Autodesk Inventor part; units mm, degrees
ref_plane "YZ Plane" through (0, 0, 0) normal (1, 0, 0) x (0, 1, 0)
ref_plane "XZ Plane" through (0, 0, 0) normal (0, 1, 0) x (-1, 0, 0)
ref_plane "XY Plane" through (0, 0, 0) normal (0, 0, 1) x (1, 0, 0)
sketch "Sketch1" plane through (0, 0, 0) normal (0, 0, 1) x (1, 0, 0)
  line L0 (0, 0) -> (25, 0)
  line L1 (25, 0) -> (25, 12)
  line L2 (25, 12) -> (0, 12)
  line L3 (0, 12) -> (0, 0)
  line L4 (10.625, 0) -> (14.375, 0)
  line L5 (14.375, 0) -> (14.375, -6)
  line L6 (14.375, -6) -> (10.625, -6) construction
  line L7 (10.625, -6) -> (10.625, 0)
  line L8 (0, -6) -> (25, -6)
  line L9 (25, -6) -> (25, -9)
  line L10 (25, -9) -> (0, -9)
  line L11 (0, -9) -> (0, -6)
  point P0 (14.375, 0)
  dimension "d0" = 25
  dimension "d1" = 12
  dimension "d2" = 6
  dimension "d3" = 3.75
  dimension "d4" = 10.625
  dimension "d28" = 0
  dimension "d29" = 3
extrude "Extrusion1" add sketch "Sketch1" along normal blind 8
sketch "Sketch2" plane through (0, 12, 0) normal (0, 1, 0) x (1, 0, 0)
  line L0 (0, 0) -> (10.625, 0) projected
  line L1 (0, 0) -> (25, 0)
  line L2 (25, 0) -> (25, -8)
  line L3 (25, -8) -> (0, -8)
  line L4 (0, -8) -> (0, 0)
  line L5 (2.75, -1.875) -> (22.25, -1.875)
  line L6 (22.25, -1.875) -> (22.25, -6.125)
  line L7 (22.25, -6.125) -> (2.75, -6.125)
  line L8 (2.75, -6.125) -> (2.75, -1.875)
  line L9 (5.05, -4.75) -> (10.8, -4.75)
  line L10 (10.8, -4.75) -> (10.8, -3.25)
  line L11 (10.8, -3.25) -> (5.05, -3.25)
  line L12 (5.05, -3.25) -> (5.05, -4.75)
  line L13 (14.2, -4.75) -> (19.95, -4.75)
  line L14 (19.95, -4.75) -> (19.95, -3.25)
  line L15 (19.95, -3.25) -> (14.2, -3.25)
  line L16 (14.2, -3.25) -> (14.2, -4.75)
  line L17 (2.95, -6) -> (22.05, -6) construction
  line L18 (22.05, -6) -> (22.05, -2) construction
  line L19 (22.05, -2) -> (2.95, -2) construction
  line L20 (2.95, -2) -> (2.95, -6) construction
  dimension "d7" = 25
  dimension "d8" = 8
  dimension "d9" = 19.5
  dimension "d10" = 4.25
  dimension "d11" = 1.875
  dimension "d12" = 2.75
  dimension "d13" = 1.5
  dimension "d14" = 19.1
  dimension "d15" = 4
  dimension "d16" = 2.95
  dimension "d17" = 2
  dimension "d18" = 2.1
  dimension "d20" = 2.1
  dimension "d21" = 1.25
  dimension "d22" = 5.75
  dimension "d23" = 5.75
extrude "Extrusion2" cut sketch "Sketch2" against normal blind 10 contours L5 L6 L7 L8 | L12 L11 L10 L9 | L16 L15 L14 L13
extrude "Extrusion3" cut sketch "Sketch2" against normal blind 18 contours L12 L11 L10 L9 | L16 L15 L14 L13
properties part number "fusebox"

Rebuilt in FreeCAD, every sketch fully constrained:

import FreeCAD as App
import Part
import Sketcher

V = App.Vector
Q = App.Units.Quantity

doc = App.newDocument("Part")
body = doc.addObject("PartDesign::Body", "Body")

# Sketch on XY plane
sketch1 = body.newObject("Sketcher::SketchObject", "Sketch")
sketch1.AttachmentSupport = (doc.getObject("XY_Plane"), [""])
sketch1.MapMode = "FlatFace"
sketch1.addGeometry(Part.LineSegment(V(0, 12, 0), V(0, 0, 0)), False)
sketch1.addGeometry(Part.LineSegment(V(0, 0, 0), V(10.6, 0, 0)), False)
sketch1.addGeometry(Part.LineSegment(V(10.6, 0, 0), V(10.6, -6, 0)), False)
sketch1.addGeometry(Part.LineSegment(V(10.6, -6, 0), V(0, -6, 0)), False)
sketch1.addGeometry(Part.LineSegment(V(0, -6, 0), V(0, -9, 0)), False)
sketch1.addGeometry(Part.LineSegment(V(0, -9, 0), V(25, -9, 0)), False)
sketch1.addGeometry(Part.LineSegment(V(25, -9, 0), V(25, -6, 0)), False)
sketch1.addGeometry(Part.LineSegment(V(25, -6, 0), V(14.4, -6, 0)), False)
sketch1.addGeometry(Part.LineSegment(V(14.4, -6, 0), V(14.4, 0, 0)), False)
sketch1.addGeometry(Part.LineSegment(V(14.4, 0, 0), V(25, 0, 0)), False)
sketch1.addGeometry(Part.LineSegment(V(25, 0, 0), V(25, 12, 0)), False)
sketch1.addGeometry(Part.LineSegment(V(25, 12, 0), V(0, 12, 0)), False)
sketch1.addConstraint(Sketcher.Constraint("Coincident", 0, 2, 1, 1))
sketch1.addConstraint(Sketcher.Constraint("Coincident", 1, 2, 2, 1))
sketch1.addConstraint(Sketcher.Constraint("Coincident", 2, 2, 3, 1))
sketch1.addConstraint(Sketcher.Constraint("Coincident", 3, 2, 4, 1))
sketch1.addConstraint(Sketcher.Constraint("Coincident", 4, 2, 5, 1))
sketch1.addConstraint(Sketcher.Constraint("Coincident", 5, 2, 6, 1))
sketch1.addConstraint(Sketcher.Constraint("Coincident", 6, 2, 7, 1))
sketch1.addConstraint(Sketcher.Constraint("Coincident", 7, 2, 8, 1))
sketch1.addConstraint(Sketcher.Constraint("Coincident", 8, 2, 9, 1))
sketch1.addConstraint(Sketcher.Constraint("Coincident", 9, 2, 10, 1))
sketch1.addConstraint(Sketcher.Constraint("Coincident", 10, 2, 11, 1))
sketch1.addConstraint(Sketcher.Constraint("Coincident", 11, 2, 0, 1))
sketch1.addConstraint(Sketcher.Constraint("Vertical", 0))
sketch1.addConstraint(Sketcher.Constraint("Horizontal", 1))
sketch1.addConstraint(Sketcher.Constraint("Vertical", 2))
sketch1.addConstraint(Sketcher.Constraint("Horizontal", 3))
sketch1.addConstraint(Sketcher.Constraint("Vertical", 4))
sketch1.addConstraint(Sketcher.Constraint("Horizontal", 5))
sketch1.addConstraint(Sketcher.Constraint("Vertical", 6))
sketch1.addConstraint(Sketcher.Constraint("Horizontal", 7))
sketch1.addConstraint(Sketcher.Constraint("Vertical", 8))
sketch1.addConstraint(Sketcher.Constraint("Horizontal", 9))
sketch1.addConstraint(Sketcher.Constraint("Vertical", 10))
sketch1.addConstraint(Sketcher.Constraint("Horizontal", 11))
sketch1.addConstraint(Sketcher.Constraint("Coincident", 0, 2, -1, 1))
sketch1.addConstraint(Sketcher.Constraint("PointOnObject", 3, 2, -2))
sketch1.addConstraint(Sketcher.Constraint("PointOnObject", 8, 2, -1))
sketch1.addConstraint(Sketcher.Constraint("Horizontal", 3, 2, 6, 2))
sketch1.addConstraint(Sketcher.Constraint("Vertical", 6, 2, 9, 2))
sketch1.addConstraint(Sketcher.Constraint("Equal", 3, 7))
sketch1.addConstraint(Sketcher.Constraint("DistanceX", 5, 1, 5, 2, Q("25 mm")))
sketch1.addConstraint(Sketcher.Constraint("DistanceY", 0, 2, 0, 1, Q("12 mm")))
sketch1.addConstraint(Sketcher.Constraint("DistanceY", 2, 2, 2, 1, Q("6 mm")))
sketch1.addConstraint(Sketcher.Constraint("DistanceY", 4, 2, 4, 1, Q("3 mm")))
sketch1.addConstraint(Sketcher.Constraint("DistanceX", 1, 1, 1, 2, Q("10.625 mm")))
pad1 = body.newObject("PartDesign::Pad", "Pad")
pad1.Profile = sketch1
pad1.Length = 8

# Sketch on XZ plane
sketch2 = body.newObject("Sketcher::SketchObject", "Sketch001")
sketch2.AttachmentSupport = (doc.getObject("XZ_Plane"), [""])
sketch2.MapMode = "FlatFace"
sketch2.AttachmentOffset = App.Placement(V(0, 0, -12), App.Rotation())
sketch2.addGeometry(Part.LineSegment(V(22.2, 1.9, 0), V(2.8, 1.9, 0)), False)
sketch2.addGeometry(Part.LineSegment(V(2.8, 1.9, 0), V(2.8, 6.1, 0)), False)
sketch2.addGeometry(Part.LineSegment(V(2.8, 6.1, 0), V(22.2, 6.1, 0)), False)
sketch2.addGeometry(Part.LineSegment(V(22.2, 6.1, 0), V(22.2, 1.9, 0)), False)
sketch2.addConstraint(Sketcher.Constraint("Coincident", 0, 2, 1, 1))
sketch2.addConstraint(Sketcher.Constraint("Coincident", 1, 2, 2, 1))
sketch2.addConstraint(Sketcher.Constraint("Coincident", 2, 2, 3, 1))
sketch2.addConstraint(Sketcher.Constraint("Coincident", 3, 2, 0, 1))
sketch2.addConstraint(Sketcher.Constraint("Horizontal", 0))
sketch2.addConstraint(Sketcher.Constraint("Vertical", 1))
sketch2.addConstraint(Sketcher.Constraint("Horizontal", 2))
sketch2.addConstraint(Sketcher.Constraint("Vertical", 3))
sketch2.addConstraint(Sketcher.Constraint("DistanceX", 0, 2, 0, 1, Q("19.5 mm")))
sketch2.addConstraint(Sketcher.Constraint("DistanceY", 1, 1, 1, 2, Q("4.25 mm")))
sketch2.addConstraint(Sketcher.Constraint("DistanceX", -1, 1, 0, 2, Q("2.75 mm")))
sketch2.addConstraint(Sketcher.Constraint("DistanceY", -1, 1, 0, 2, Q("1.875 mm")))
pocket1 = body.newObject("PartDesign::Pocket", "Pocket")
pocket1.Profile = sketch2
pocket1.Length = 10
pocket1.Reversed = True

# Sketch on XZ plane
sketch3 = body.newObject("Sketcher::SketchObject", "Sketch002")
sketch3.AttachmentSupport = (doc.getObject("XZ_Plane"), [""])
sketch3.MapMode = "FlatFace"
sketch3.AttachmentOffset = App.Placement(V(0, 0, -12), App.Rotation())
sketch3.addGeometry(Part.LineSegment(V(5, 3.2, 0), V(5, 4.8, 0)), False)
sketch3.addGeometry(Part.LineSegment(V(5, 4.8, 0), V(10.8, 4.8, 0)), False)
sketch3.addGeometry(Part.LineSegment(V(10.8, 4.8, 0), V(10.8, 3.2, 0)), False)
sketch3.addGeometry(Part.LineSegment(V(10.8, 3.2, 0), V(5, 3.2, 0)), False)
sketch3.addGeometry(Part.LineSegment(V(14.2, 3.2, 0), V(14.2, 4.8, 0)), False)
sketch3.addGeometry(Part.LineSegment(V(14.2, 4.8, 0), V(19.9, 4.8, 0)), False)
sketch3.addGeometry(Part.LineSegment(V(19.9, 4.8, 0), V(19.9, 3.2, 0)), False)
sketch3.addGeometry(Part.LineSegment(V(19.9, 3.2, 0), V(14.2, 3.2, 0)), False)
sketch3.addConstraint(Sketcher.Constraint("Coincident", 0, 2, 1, 1))
sketch3.addConstraint(Sketcher.Constraint("Coincident", 1, 2, 2, 1))
sketch3.addConstraint(Sketcher.Constraint("Coincident", 2, 2, 3, 1))
sketch3.addConstraint(Sketcher.Constraint("Coincident", 3, 2, 0, 1))
sketch3.addConstraint(Sketcher.Constraint("Coincident", 4, 2, 5, 1))
sketch3.addConstraint(Sketcher.Constraint("Coincident", 5, 2, 6, 1))
sketch3.addConstraint(Sketcher.Constraint("Coincident", 6, 2, 7, 1))
sketch3.addConstraint(Sketcher.Constraint("Coincident", 7, 2, 4, 1))
sketch3.addConstraint(Sketcher.Constraint("Vertical", 0))
sketch3.addConstraint(Sketcher.Constraint("Horizontal", 1))
sketch3.addConstraint(Sketcher.Constraint("Vertical", 2))
sketch3.addConstraint(Sketcher.Constraint("Horizontal", 3))
sketch3.addConstraint(Sketcher.Constraint("Vertical", 4))
sketch3.addConstraint(Sketcher.Constraint("Horizontal", 5))
sketch3.addConstraint(Sketcher.Constraint("Vertical", 6))
sketch3.addConstraint(Sketcher.Constraint("Horizontal", 7))
sketch3.addConstraint(Sketcher.Constraint("Horizontal", 1, 2, 4, 2))
sketch3.addConstraint(Sketcher.Constraint("Horizontal", 3, 2, 6, 2))
sketch3.addConstraint(Sketcher.Constraint("Equal", 3, 5))
sketch3.addConstraint(Sketcher.Constraint("DistanceY", 0, 1, 0, 2, Q("1.5 mm")))
sketch3.addConstraint(Sketcher.Constraint("DistanceX", 1, 1, 1, 2, Q("5.75 mm")))
sketch3.addConstraint(Sketcher.Constraint("DistanceX", -1, 1, 1, 2, Q("10.8 mm")))
sketch3.addConstraint(Sketcher.Constraint("DistanceX", -1, 1, 4, 2, Q("14.2 mm")))
sketch3.addConstraint(Sketcher.Constraint("DistanceY", -1, 1, 0, 2, Q("4.75 mm")))
pocket2 = body.newObject("PartDesign::Pocket", "Pocket001")
pocket2.Profile = sketch3
pocket2.Length = 18
pocket2.Reversed = True

doc.recompute()
